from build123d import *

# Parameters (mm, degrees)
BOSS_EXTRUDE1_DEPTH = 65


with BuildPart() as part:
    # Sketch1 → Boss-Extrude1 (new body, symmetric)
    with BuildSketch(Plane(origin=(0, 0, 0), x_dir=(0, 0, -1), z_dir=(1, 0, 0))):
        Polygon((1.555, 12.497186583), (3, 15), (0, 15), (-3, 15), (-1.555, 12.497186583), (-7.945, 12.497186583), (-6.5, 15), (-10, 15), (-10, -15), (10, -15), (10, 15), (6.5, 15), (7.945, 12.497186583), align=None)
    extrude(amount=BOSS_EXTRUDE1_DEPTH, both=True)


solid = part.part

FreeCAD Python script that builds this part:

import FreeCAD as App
import Part
import Sketcher
from FreeCAD import Vector
Q = App.Units.Quantity


def add_polygon(sketch, points):
    """Adds a closed chain of lines whose ends are joined by coincident constraints."""
    first, n = sketch.GeometryCount, len(points)
    for a, b in zip(points, points[1:] + points[:1]):
        sketch.addGeometry(Part.LineSegment(App.Vector(*a, 0), App.Vector(*b, 0)), False)
    for i in range(n):
        sketch.addConstraint(Sketcher.Constraint("Coincident", first + i, 2, first + (i + 1) % n, 1))

doc = App.newDocument("Part")
params = doc.addObject("Spreadsheet::Sheet", "Params")
for row, (alias, value) in enumerate([
    ("sketch1_width", "30 mm"),
    ("sketch1_height", "6 mm"),
    ("sketch1_height2", "20 mm"),
    ("sketch1_height3", "3.5 mm"),
    ("sketch1_height4", "6.39 mm"),
    ("pad1_length", "130 mm"),
], start=1):
    params.set(f"A{row}", alias)
    params.set(f"B{row}", "=" + value)
    params.setAlias(f"B{row}", alias)

body = doc.addObject("PartDesign::Body", "Body")

sketch1 = doc.addObject("Sketcher::SketchObject", "Sketch")
body.addObject(sketch1)
sketch1.AttachmentSupport = (doc.YZ_Plane, [""])
sketch1.MapMode = "FlatFace"
add_polygon(sketch1, [(12.5, -1.6), (15, -3), (15, 3), (12.5, 1.6), (12.5, 7.9), (15, 6.5), (15, 10), (-15, 10), (-15, -10), (15, -10), (15, -6.5), (12.5, -7.9)])
sketch1.addConstraint(Sketcher.Constraint("Vertical", 1))
sketch1.addConstraint(Sketcher.Constraint("Vertical", 3))
sketch1.addConstraint(Sketcher.Constraint("Vertical", 5))
sketch1.addConstraint(Sketcher.Constraint("Horizontal", 6))
sketch1.addConstraint(Sketcher.Constraint("Vertical", 7))
sketch1.addConstraint(Sketcher.Constraint("Horizontal", 8))
sketch1.addConstraint(Sketcher.Constraint("Vertical", 9))
sketch1.addConstraint(Sketcher.Constraint("Vertical", 11))
sketch1.addConstraint(Sketcher.Constraint("Symmetric", 5, 2, 7, 2, -1, 1))
sketch1.addConstraint(Sketcher.Constraint("Symmetric", 4, 2, 9, 2, -1))
sketch1.addConstraint(Sketcher.Constraint("Symmetric", 3, 2, 10, 2, -1))
sketch1.addConstraint(Sketcher.Constraint("Parallel", 0, 4))
sketch1.addConstraint(Sketcher.Constraint("Parallel", 2, 10))
sketch1.addConstraint(Sketcher.Constraint("Vertical", 1, 2, 4, 2))
sketch1.addConstraint(Sketcher.Constraint("Equal", 3, 11))
sketch1.addConstraint(Sketcher.Constraint("DistanceX", 6, 2, 6, 1, Q("30 mm")))
sketch1.addConstraint(Sketcher.Constraint("DistanceY", 1, 1, 1, 2, Q("6 mm")))
sketch1.addConstraint(Sketcher.Constraint("DistanceY", 7, 2, 7, 1, Q("20 mm")))
sketch1.addConstraint(Sketcher.Constraint("Angle", 0, Q("-30 deg")))
sketch1.addConstraint(Sketcher.Constraint("DistanceY", 5, 1, 5, 2, Q("3.5 mm")))
sketch1.addConstraint(Sketcher.Constraint("DistanceY", 3, 1, 3, 2, Q("6.39 mm")))
sketch1.setExpression("Constraints[27]", "Params.sketch1_width")
sketch1.setExpression("Constraints[28]", "Params.sketch1_height")
sketch1.setExpression("Constraints[29]", "Params.sketch1_height2")
sketch1.setExpression("Constraints[31]", "Params.sketch1_height3")
sketch1.setExpression("Constraints[32]", "Params.sketch1_height4")
pad1 = doc.addObject("PartDesign::Pad", "Pad")
body.addObject(pad1)
pad1.Profile = sketch1
pad1.setExpression("Length", "Params.pad1_length")
pad1.Midplane = True

doc.recompute()
